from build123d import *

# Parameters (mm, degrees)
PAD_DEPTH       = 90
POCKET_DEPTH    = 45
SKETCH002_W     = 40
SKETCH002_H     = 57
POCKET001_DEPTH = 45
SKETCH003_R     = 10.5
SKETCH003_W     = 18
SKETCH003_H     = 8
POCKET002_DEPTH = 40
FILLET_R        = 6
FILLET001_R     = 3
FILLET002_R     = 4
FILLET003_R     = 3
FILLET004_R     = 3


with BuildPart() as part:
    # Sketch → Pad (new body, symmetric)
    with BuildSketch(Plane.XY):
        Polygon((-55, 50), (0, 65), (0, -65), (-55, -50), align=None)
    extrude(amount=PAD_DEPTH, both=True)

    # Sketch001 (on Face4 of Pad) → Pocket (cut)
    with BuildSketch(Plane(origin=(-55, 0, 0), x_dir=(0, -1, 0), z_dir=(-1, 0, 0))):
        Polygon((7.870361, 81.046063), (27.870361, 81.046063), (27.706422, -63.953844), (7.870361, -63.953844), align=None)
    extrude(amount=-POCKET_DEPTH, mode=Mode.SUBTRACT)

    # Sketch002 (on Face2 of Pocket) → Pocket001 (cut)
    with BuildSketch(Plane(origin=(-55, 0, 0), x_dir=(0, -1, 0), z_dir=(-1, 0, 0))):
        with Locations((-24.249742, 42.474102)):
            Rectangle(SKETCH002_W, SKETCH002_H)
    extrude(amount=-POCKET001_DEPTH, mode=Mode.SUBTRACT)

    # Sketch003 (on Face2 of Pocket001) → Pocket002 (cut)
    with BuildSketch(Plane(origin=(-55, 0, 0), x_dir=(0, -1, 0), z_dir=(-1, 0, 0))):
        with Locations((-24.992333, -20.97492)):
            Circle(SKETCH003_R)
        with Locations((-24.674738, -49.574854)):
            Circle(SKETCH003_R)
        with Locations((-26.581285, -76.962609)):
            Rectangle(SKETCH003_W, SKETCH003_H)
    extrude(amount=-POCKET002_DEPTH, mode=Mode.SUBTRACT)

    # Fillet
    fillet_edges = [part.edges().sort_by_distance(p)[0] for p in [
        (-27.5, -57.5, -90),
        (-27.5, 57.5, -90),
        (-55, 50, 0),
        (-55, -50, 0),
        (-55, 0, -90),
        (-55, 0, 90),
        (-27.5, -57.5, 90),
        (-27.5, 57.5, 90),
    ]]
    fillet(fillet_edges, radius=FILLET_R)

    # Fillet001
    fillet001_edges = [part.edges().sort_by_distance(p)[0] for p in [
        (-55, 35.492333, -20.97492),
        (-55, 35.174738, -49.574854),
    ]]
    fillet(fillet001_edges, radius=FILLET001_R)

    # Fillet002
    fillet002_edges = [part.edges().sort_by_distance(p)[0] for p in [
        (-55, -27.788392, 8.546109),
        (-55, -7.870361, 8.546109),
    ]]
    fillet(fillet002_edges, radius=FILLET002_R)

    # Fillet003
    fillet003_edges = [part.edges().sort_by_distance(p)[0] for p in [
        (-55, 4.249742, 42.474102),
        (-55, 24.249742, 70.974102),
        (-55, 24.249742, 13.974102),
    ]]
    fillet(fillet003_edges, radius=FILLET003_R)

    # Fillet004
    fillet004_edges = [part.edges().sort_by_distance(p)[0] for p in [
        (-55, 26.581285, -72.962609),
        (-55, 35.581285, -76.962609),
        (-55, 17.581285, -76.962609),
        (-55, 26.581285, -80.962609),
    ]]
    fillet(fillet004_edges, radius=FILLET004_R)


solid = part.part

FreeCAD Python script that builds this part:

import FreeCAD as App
import Part
import Sketcher
from FreeCAD import Vector


def edges_at(feature, points):
    """Names of the edges that pass closest to the given points."""
    edges = feature.Shape.Edges
    near = lambda p: min(range(len(edges)), key=lambda i: edges[i].distToShape(Part.Vertex(*p))[0])
    return sorted({f"Edge{near(p) + 1}" for p in points})


def add_polygon(sketch, points):
    """Adds a closed chain of lines whose ends are joined by coincident constraints."""
    first, n = sketch.GeometryCount, len(points)
    for a, b in zip(points, points[1:] + points[:1]):
        sketch.addGeometry(Part.LineSegment(App.Vector(*a, 0), App.Vector(*b, 0)), False)
    for i in range(n):
        sketch.addConstraint(Sketcher.Constraint("Coincident", first + i, 2, first + (i + 1) % n, 1))

doc = App.newDocument("Part")
params = doc.addObject("Spreadsheet::Sheet", "Params")
for row, (alias, value) in enumerate([
    ("sketch1_height", "100 mm"),
    ("sketch1_height2", "130 mm"),
    ("pad1_length", "180 mm"),
    ("sketch2_width", "20 mm"),
    ("sketch2_length", "145 mm"),
    ("pocket1_length", "45 mm"),
    ("sketch3_width", "40 mm"),
    ("sketch3_height", "57 mm"),
    ("pocket2_length", "45 mm"),
    ("sketch4_diameter", "21 mm"),
    ("sketch4_width", "18 mm"),
    ("sketch4_height", "8 mm"),
    ("pocket3_length", "40 mm"),
    ("fillet_radius", "6 mm"),
    ("fillet2_radius", "3 mm"),
    ("fillet3_radius", "4 mm"),
    ("fillet4_radius", "3 mm"),
    ("fillet5_radius", "3 mm"),
], start=1):
    params.set(f"A{row}", alias)
    params.set(f"B{row}", "=" + value)
    params.setAlias(f"B{row}", alias)

body = doc.addObject("PartDesign::Body", "Body")

sketch1 = doc.addObject("Sketcher::SketchObject", "Sketch")
body.addObject(sketch1)
sketch1.AttachmentSupport = (doc.XY_Plane, [""])
sketch1.MapMode = "FlatFace"
add_polygon(sketch1, [(0, 65), (-55, 50), (-55, -50), (0, -65)])
sketch1.addConstraint([
    Sketcher.Constraint("Vertical", 1),
    Sketcher.Constraint("Vertical", 3),
    Sketcher.Constraint("Symmetric", 2, 2, 3, 2, -1, 1),
    Sketcher.Constraint("Equal", 0, 2),
    Sketcher.Constraint("DistanceY", 1, 2, 1, 1, 100.0),
    Sketcher.Constraint("DistanceY", 3, 1, 3, 2, 130.0),
    Sketcher.Constraint("DistanceX", 0, 2, -1, 1, 55.0),
])
sketch1.setExpression("Constraints[8]", "Params.sketch1_height")
sketch1.setExpression("Constraints[9]", "Params.sketch1_height2")
pad1 = doc.addObject("PartDesign::Pad", "Pad")
body.addObject(pad1)
pad1.Profile = sketch1
pad1.setExpression("Length", "Params.pad1_length")
pad1.Midplane = True

sketch2 = doc.addObject("Sketcher::SketchObject", "Sketch001")
body.addObject(sketch2)
sketch2.AttachmentSupport = (doc.YZ_Plane, [""])
sketch2.MapMode = "FlatFace"
sketch2.AttachmentOffset = App.Placement(Vector(0, 0, -55), App.Rotation())
add_polygon(sketch2, [(-28, 81), (-8, 81), (-8, -64), (-28, -64)])
sketch2.addConstraint([
    Sketcher.Constraint("Horizontal", 0),
    Sketcher.Constraint("Vertical", 1),
    Sketcher.Constraint("Horizontal", 2),
    Sketcher.Constraint("DistanceX", 0, 1, 0, 2, 20.0),
    Sketcher.Constraint("Distance", 3, 145.0),
    Sketcher.Constraint("DistanceX", 2, 2, 2, 1, 19.836061),
    Sketcher.Constraint("DistanceX", 0, 2, -1, 1, 7.870361),
    Sketcher.Constraint("DistanceY", -1, 1, 0, 2, 81.046063),
])
sketch2.setExpression("Constraints[7]", "Params.sketch2_width")
sketch2.setExpression("Constraints[8]", "Params.sketch2_length")
pocket1 = doc.addObject("PartDesign::Pocket", "Pocket")
body.addObject(pocket1)
pocket1.Profile = sketch2
pocket1.setExpression("Length", "Params.pocket1_length")
pocket1.Reversed = True

sketch3 = doc.addObject("Sketcher::SketchObject", "Sketch002")
body.addObject(sketch3)
sketch3.AttachmentSupport = (doc.YZ_Plane, [""])
sketch3.MapMode = "FlatFace"
sketch3.AttachmentOffset = App.Placement(Vector(0, 0, -55), App.Rotation())
add_polygon(sketch3, [(44, 71), (44, 14), (4, 14), (4, 71)])
sketch3.addConstraint([
    Sketcher.Constraint("Vertical", 0),
    Sketcher.Constraint("Horizontal", 1),
    Sketcher.Constraint("Vertical", 2),
    Sketcher.Constraint("Horizontal", 3),
    Sketcher.Constraint("DistanceX", 1, 2, 1, 1, 40.0),
    Sketcher.Constraint("DistanceY", 0, 2, 0, 1, 57.0),
    Sketcher.Constraint("DistanceY", -1, 1, 2, 2, 70.974102),
    Sketcher.Constraint("DistanceX", -1, 1, 0, 2, 44.249742),
])
sketch3.setExpression("Constraints[8]", "Params.sketch3_width")
sketch3.setExpression("Constraints[9]", "Params.sketch3_height")
pocket2 = doc.addObject("PartDesign::Pocket", "Pocket001")
body.addObject(pocket2)
pocket2.Profile = sketch3
pocket2.setExpression("Length", "Params.pocket2_length")
pocket2.Reversed = True

sketch4 = doc.addObject("Sketcher::SketchObject", "Sketch003")
body.addObject(sketch4)
sketch4.AttachmentSupport = (doc.YZ_Plane, [""])
sketch4.MapMode = "FlatFace"
sketch4.AttachmentOffset = App.Placement(Vector(0, 0, -55), App.Rotation())
sketch4.addGeometry(Part.Circle(Vector(25, -21, 0), Vector(0, 0, 1), 10), False)
sketch4.addGeometry(Part.Circle(Vector(25, -50, 0), Vector(0, 0, 1), 10), False)
add_polygon(sketch4, [(36, -73), (36, -81), (18, -81), (18, -73)])
sketch4.addConstraint([
    Sketcher.Constraint("Vertical", 2),
    Sketcher.Constraint("Horizontal", 3),
    Sketcher.Constraint("Vertical", 4),
    Sketcher.Constraint("Horizontal", 5),
    Sketcher.Constraint("Equal", 0, 1),
    Sketcher.Constraint("Diameter", 0, 21.0),
    Sketcher.Constraint("DistanceX", 3, 2, 3, 1, 18.0),
    Sketcher.Constraint("DistanceY", 2, 2, 2, 1, 8.0),
    Sketcher.Constraint("DistanceY", 0, 3, -1, 1, 20.97492),
    Sketcher.Constraint("DistanceX", -1, 1, 1, 3, 24.674738),
    Sketcher.Constraint("DistanceY", 2, 2, -1, 1, 80.962609),
    Sketcher.Constraint("DistanceX", -1, 1, 0, 3, 24.992333),
    Sketcher.Constraint("DistanceY", 1, 3, -1, 1, 49.574854),
    Sketcher.Constraint("DistanceX", -1, 1, 2, 2, 35.581285),
])
sketch4.setExpression("Constraints[9]", "Params.sketch4_diameter")
sketch4.setExpression("Constraints[10]", "Params.sketch4_width")
sketch4.setExpression("Constraints[11]", "Params.sketch4_height")
pocket3 = doc.addObject("PartDesign::Pocket", "Pocket002")
body.addObject(pocket3)
pocket3.Profile = sketch4
pocket3.setExpression("Length", "Params.pocket3_length")
pocket3.Reversed = True
doc.recompute()

fillet = doc.addObject("PartDesign::Fillet", "Fillet")
body.addObject(fillet)
fillet.Base = (pocket3, edges_at(pocket3, [
    (-27.5, -57.5, -90),
    (-27.5, 57.5, -90),
    (-55, 50, 0),
    (-55, -50, 0),
    (-55, 0, -90),
    (-55, 0, 90),
    (-27.5, -57.5, 90),
    (-27.5, 57.5, 90),
]))
fillet.setExpression("Radius", "Params.fillet_radius")
doc.recompute()

fillet2 = doc.addObject("PartDesign::Fillet", "Fillet001")
body.addObject(fillet2)
fillet2.Base = (fillet, edges_at(fillet, [(-55, 35.492, -20.975), (-55, 35.175, -49.575)]))
fillet2.setExpression("Radius", "Params.fillet2_radius")
doc.recompute()

fillet3 = doc.addObject("PartDesign::Fillet", "Fillet002")
body.addObject(fillet3)
fillet3.Base = (fillet2, edges_at(fillet2, [(-55, -27.788, 8.546), (-55, -7.87, 8.546)]))
fillet3.setExpression("Radius", "Params.fillet3_radius")
doc.recompute()

fillet4 = doc.addObject("PartDesign::Fillet", "Fillet003")
body.addObject(fillet4)
fillet4.Base = (fillet3, edges_at(fillet3, [(-55, 4.25, 42.474), (-55, 24.25, 70.974), (-55, 24.25, 13.974)]))
fillet4.setExpression("Radius", "Params.fillet4_radius")
doc.recompute()

fillet5 = doc.addObject("PartDesign::Fillet", "Fillet004")
body.addObject(fillet5)
fillet5.Base = (fillet4, edges_at(fillet4, [
    (-55, 26.581, -72.963),
    (-55, 35.581, -76.963),
    (-55, 17.581, -76.963),
    (-55, 26.581, -80.963),
]))
fillet5.setExpression("Radius", "Params.fillet5_radius")

doc.recompute()
